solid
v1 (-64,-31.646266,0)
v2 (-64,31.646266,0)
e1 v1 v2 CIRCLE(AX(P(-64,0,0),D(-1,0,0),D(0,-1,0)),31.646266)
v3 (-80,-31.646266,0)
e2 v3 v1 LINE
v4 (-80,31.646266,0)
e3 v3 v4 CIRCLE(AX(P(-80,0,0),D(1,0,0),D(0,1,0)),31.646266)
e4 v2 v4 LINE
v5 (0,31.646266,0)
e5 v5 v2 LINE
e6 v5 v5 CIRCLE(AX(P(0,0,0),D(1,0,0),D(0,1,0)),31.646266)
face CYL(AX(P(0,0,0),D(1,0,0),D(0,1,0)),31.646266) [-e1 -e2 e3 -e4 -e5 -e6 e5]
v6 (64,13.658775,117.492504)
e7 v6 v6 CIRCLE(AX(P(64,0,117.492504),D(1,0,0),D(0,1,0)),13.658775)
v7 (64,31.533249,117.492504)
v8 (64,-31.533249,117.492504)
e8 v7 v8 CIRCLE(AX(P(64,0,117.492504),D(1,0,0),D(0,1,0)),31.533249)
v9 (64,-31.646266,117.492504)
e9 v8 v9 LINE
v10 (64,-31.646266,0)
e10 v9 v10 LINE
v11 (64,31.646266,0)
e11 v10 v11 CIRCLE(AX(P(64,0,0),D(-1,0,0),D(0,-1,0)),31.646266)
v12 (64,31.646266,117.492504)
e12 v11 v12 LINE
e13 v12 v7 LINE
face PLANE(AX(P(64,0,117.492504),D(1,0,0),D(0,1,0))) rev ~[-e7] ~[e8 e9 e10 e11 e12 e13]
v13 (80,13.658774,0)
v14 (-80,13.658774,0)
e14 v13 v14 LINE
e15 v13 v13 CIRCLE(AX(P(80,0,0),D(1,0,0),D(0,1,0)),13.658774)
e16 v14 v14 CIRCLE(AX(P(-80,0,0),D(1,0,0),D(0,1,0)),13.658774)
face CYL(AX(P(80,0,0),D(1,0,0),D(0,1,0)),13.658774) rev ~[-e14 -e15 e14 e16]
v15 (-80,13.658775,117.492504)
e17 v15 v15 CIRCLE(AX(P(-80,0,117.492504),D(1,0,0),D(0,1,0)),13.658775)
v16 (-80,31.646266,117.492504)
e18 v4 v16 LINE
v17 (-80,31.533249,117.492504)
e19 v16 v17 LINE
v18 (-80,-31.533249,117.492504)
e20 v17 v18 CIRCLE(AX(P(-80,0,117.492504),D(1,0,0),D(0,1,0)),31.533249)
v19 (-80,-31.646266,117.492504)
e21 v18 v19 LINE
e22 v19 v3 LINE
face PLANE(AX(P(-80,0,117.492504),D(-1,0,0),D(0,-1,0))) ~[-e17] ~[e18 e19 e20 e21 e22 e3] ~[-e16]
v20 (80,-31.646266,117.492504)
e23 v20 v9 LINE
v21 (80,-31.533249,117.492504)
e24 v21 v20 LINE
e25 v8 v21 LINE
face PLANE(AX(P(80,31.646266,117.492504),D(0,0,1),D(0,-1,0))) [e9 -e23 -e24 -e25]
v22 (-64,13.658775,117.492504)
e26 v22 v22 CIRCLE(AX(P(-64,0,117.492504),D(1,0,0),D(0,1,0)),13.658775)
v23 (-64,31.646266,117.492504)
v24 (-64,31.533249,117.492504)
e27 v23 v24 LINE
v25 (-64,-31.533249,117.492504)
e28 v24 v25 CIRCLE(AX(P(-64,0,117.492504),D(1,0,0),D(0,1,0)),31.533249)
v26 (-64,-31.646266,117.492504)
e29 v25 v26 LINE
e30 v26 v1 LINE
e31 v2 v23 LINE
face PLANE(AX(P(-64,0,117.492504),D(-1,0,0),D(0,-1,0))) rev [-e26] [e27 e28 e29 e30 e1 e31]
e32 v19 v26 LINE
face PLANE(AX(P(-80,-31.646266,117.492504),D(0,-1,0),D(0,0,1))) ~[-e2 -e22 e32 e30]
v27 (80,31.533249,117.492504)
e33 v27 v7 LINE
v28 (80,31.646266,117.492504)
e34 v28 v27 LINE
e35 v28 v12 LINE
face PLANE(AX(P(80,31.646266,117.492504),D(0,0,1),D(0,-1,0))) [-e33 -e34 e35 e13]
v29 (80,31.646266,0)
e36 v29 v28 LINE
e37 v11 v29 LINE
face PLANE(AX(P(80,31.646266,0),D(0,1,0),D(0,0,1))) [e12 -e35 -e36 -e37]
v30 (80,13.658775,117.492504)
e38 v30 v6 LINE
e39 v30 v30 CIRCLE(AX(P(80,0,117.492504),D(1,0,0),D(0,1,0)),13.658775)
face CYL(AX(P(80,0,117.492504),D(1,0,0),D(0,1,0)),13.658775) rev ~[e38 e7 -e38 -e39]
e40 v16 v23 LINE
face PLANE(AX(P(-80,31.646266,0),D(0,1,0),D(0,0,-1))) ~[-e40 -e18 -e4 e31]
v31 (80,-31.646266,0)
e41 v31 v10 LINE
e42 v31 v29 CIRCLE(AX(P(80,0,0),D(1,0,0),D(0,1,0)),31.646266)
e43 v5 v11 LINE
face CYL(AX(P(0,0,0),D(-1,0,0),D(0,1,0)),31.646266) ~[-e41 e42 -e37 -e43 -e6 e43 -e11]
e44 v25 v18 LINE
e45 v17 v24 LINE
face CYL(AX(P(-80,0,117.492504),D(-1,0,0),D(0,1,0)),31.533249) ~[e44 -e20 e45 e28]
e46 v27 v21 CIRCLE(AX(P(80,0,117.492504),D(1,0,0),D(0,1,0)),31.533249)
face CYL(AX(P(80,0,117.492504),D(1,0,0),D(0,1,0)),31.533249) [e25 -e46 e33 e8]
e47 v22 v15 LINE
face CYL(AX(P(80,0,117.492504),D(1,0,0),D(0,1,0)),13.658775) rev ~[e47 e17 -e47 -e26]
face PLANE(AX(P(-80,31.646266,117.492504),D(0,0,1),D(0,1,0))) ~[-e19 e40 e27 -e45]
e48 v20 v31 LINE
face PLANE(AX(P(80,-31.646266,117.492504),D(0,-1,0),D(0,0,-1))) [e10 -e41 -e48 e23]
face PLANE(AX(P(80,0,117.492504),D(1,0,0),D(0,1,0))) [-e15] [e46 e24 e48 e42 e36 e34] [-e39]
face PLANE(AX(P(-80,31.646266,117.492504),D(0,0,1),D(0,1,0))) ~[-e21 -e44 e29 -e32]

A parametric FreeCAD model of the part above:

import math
import FreeCAD as App
import Part
import Sketcher

V = App.Vector

doc = App.newDocument("Part")
params = doc.addObject("Spreadsheet::Sheet", "Params")
for row, (alias, value) in enumerate([
    ("pad1_length", "80 mm"),
    ("pad2_length", "16 mm"),
    ("pad3_length", "16 mm"),
    ("pocket1_length", "193 mm"),
    ("pocket2_length", "212 mm"),
], start=1):
    params.set(f"A{row}", alias)
    params.set(f"B{row}", "=" + value)
    params.setAlias(f"B{row}", alias)

body = doc.addObject("PartDesign::Body", "Body")

# Sketch on YZ plane
sketch1 = body.newObject("Sketcher::SketchObject", "Sketch")
sketch1.AttachmentSupport = (doc.getObject("YZ_Plane"), [""])
sketch1.MapMode = "FlatFace"
sketch1.addGeometry(Part.Circle(V(0, 0, 0), V(0, 0, 1), 32), False)
sketch1.addConstraint([
    Sketcher.Constraint("Coincident", 0, 3, -1, 1),
    Sketcher.Constraint("Diameter", 0, 63.292532),
])
pad1 = body.newObject("PartDesign::Pad", "Pad")
pad1.Profile = sketch1
pad1.setExpression("Length", "Params.pad1_length")

# Sketch on YZ plane
sketch2 = body.newObject("Sketcher::SketchObject", "Sketch001")
sketch2.AttachmentSupport = (doc.getObject("YZ_Plane"), [""])
sketch2.MapMode = "FlatFace"
sketch2.AttachmentOffset = App.Placement(V(0, 0, 80), App.Rotation())
sketch2.addGeometry([
    Part.LineSegment(V(32, 0, 0), V(32, 117, 0)),  # 0
    Part.LineSegment(V(32, 117, 0), V(-32, 117, 0)),  # 1
    Part.LineSegment(V(-32, 117, 0), V(-32, 0, 0)),  # 2
    Part.ArcOfCircle(Part.Circle(V(0, 0, 0), V(0, 0, 1), 32), math.radians(0), math.radians(180)),  # 3
    Part.ArcOfCircle(Part.Circle(V(0, 0, 0), V(0, 0, 1), 32), math.radians(180), math.radians(360)),  # 4
    Part.LineSegment(V(32, 0, 0), V(-32, 0, 0)),  # 5
], False)
sketch2.addConstraint([
    Sketcher.Constraint("Coincident", 0, 2, 1, 1),
    Sketcher.Constraint("Coincident", 1, 2, 2, 1),
    Sketcher.Constraint("Tangent", 2, 2, 3, 2),
    Sketcher.Constraint("Tangent", 3, 1, 0, 1),
    Sketcher.Constraint("Coincident", 4, 1, 5, 2),
    Sketcher.Constraint("Coincident", 5, 1, 4, 2),
    Sketcher.Constraint("Vertical", 0),
    Sketcher.Constraint("Horizontal", 1),
    Sketcher.Constraint("Vertical", 2),
    Sketcher.Constraint("Horizontal", 5),
    Sketcher.Constraint("Coincident", 3, 3, -1, 1),
    Sketcher.Constraint("Coincident", 4, 3, -1, 1),
    Sketcher.Constraint("Coincident", 4, 1, 2, 2),
    Sketcher.Constraint("Radius", 3, 31.646266),
    Sketcher.Constraint("DistanceY", 0, 1, 0, 2, 117.492504),
])
pad2 = body.newObject("PartDesign::Pad", "Pad001")
pad2.Profile = sketch2
pad2.setExpression("Length", "Params.pad2_length")
pad2.Reversed = True

# Sketch on YZ plane
sketch3 = body.newObject("Sketcher::SketchObject", "Sketch002")
sketch3.AttachmentSupport = (doc.getObject("YZ_Plane"), [""])
sketch3.MapMode = "FlatFace"
sketch3.AttachmentOffset = App.Placement(V(0, 0, 80), App.Rotation())
sketch3.addGeometry(Part.Circle(V(0, 117, 0), V(0, 0, 1), 32), False)
sketch3.addConstraint([
    Sketcher.Constraint("PointOnObject", 0, 3, -2),
    Sketcher.Constraint("Diameter", 0, 63.066498),
    Sketcher.Constraint("DistanceY", -1, 1, 0, 3, 117.492504),
])
pad3 = body.newObject("PartDesign::Pad", "Pad002")
pad3.Profile = sketch3
pad3.setExpression("Length", "Params.pad3_length")
pad3.Reversed = True
body2 = doc.addObject("PartDesign::Body", "Body001")
doc.recompute()

body2.BaseFeature = body
doc.recompute()

mirroring = doc.addObject("Part::Mirroring", "Mirroring")
mirroring.Source = body
mirroring.Base = V(0, 0, 0)
mirroring.Normal = V(-1, 0, 0)
body3 = doc.addObject("PartDesign::Body", "Body002")
body3.BaseFeature = mirroring
boolean = body2.newObject("PartDesign::Boolean", "Boolean")
boolean.Type = "Fuse"
boolean.addObjects([body3])
doc.recompute()

# Sketch on YZ plane
sketch4 = body2.newObject("Sketcher::SketchObject", "Sketch003")
sketch4.AttachmentSupport = (doc.getObject("YZ_Plane001"), [""])
sketch4.MapMode = "FlatFace"
sketch4.AttachmentOffset = App.Placement(V(0, 0, 80), App.Rotation())
sketch4.addGeometry(Part.Circle(V(0, 0, 0), V(0, 0, 1), 14), False)
sketch4.addConstraint([
    Sketcher.Constraint("Coincident", 0, 3, -1, 1),
    Sketcher.Constraint("Diameter", 0, 27.317548),
])
pocket1 = body2.newObject("PartDesign::Pocket", "Pocket")
pocket1.Profile = sketch4
pocket1.setExpression("Length", "Params.pocket1_length")

# Sketch on YZ plane
sketch5 = body2.newObject("Sketcher::SketchObject", "Sketch004")
sketch5.AttachmentSupport = (doc.getObject("YZ_Plane001"), [""])
sketch5.MapMode = "FlatFace"
sketch5.AttachmentOffset = App.Placement(V(0, 0, 80), App.Rotation())
sketch5.addGeometry(Part.Circle(V(0, 117, 0), V(0, 0, 1), 14), False)
sketch5.addConstraint([
    Sketcher.Constraint("PointOnObject", 0, 3, -2),
    Sketcher.Constraint("Diameter", 0, 27.31755),
    Sketcher.Constraint("DistanceY", -1, 1, 0, 3, 117.492504),
])
pocket2 = body2.newObject("PartDesign::Pocket", "Pocket001")
pocket2.Profile = sketch5
pocket2.setExpression("Length", "Params.pocket2_length")
mirroring.Visibility = False

doc.recompute()
